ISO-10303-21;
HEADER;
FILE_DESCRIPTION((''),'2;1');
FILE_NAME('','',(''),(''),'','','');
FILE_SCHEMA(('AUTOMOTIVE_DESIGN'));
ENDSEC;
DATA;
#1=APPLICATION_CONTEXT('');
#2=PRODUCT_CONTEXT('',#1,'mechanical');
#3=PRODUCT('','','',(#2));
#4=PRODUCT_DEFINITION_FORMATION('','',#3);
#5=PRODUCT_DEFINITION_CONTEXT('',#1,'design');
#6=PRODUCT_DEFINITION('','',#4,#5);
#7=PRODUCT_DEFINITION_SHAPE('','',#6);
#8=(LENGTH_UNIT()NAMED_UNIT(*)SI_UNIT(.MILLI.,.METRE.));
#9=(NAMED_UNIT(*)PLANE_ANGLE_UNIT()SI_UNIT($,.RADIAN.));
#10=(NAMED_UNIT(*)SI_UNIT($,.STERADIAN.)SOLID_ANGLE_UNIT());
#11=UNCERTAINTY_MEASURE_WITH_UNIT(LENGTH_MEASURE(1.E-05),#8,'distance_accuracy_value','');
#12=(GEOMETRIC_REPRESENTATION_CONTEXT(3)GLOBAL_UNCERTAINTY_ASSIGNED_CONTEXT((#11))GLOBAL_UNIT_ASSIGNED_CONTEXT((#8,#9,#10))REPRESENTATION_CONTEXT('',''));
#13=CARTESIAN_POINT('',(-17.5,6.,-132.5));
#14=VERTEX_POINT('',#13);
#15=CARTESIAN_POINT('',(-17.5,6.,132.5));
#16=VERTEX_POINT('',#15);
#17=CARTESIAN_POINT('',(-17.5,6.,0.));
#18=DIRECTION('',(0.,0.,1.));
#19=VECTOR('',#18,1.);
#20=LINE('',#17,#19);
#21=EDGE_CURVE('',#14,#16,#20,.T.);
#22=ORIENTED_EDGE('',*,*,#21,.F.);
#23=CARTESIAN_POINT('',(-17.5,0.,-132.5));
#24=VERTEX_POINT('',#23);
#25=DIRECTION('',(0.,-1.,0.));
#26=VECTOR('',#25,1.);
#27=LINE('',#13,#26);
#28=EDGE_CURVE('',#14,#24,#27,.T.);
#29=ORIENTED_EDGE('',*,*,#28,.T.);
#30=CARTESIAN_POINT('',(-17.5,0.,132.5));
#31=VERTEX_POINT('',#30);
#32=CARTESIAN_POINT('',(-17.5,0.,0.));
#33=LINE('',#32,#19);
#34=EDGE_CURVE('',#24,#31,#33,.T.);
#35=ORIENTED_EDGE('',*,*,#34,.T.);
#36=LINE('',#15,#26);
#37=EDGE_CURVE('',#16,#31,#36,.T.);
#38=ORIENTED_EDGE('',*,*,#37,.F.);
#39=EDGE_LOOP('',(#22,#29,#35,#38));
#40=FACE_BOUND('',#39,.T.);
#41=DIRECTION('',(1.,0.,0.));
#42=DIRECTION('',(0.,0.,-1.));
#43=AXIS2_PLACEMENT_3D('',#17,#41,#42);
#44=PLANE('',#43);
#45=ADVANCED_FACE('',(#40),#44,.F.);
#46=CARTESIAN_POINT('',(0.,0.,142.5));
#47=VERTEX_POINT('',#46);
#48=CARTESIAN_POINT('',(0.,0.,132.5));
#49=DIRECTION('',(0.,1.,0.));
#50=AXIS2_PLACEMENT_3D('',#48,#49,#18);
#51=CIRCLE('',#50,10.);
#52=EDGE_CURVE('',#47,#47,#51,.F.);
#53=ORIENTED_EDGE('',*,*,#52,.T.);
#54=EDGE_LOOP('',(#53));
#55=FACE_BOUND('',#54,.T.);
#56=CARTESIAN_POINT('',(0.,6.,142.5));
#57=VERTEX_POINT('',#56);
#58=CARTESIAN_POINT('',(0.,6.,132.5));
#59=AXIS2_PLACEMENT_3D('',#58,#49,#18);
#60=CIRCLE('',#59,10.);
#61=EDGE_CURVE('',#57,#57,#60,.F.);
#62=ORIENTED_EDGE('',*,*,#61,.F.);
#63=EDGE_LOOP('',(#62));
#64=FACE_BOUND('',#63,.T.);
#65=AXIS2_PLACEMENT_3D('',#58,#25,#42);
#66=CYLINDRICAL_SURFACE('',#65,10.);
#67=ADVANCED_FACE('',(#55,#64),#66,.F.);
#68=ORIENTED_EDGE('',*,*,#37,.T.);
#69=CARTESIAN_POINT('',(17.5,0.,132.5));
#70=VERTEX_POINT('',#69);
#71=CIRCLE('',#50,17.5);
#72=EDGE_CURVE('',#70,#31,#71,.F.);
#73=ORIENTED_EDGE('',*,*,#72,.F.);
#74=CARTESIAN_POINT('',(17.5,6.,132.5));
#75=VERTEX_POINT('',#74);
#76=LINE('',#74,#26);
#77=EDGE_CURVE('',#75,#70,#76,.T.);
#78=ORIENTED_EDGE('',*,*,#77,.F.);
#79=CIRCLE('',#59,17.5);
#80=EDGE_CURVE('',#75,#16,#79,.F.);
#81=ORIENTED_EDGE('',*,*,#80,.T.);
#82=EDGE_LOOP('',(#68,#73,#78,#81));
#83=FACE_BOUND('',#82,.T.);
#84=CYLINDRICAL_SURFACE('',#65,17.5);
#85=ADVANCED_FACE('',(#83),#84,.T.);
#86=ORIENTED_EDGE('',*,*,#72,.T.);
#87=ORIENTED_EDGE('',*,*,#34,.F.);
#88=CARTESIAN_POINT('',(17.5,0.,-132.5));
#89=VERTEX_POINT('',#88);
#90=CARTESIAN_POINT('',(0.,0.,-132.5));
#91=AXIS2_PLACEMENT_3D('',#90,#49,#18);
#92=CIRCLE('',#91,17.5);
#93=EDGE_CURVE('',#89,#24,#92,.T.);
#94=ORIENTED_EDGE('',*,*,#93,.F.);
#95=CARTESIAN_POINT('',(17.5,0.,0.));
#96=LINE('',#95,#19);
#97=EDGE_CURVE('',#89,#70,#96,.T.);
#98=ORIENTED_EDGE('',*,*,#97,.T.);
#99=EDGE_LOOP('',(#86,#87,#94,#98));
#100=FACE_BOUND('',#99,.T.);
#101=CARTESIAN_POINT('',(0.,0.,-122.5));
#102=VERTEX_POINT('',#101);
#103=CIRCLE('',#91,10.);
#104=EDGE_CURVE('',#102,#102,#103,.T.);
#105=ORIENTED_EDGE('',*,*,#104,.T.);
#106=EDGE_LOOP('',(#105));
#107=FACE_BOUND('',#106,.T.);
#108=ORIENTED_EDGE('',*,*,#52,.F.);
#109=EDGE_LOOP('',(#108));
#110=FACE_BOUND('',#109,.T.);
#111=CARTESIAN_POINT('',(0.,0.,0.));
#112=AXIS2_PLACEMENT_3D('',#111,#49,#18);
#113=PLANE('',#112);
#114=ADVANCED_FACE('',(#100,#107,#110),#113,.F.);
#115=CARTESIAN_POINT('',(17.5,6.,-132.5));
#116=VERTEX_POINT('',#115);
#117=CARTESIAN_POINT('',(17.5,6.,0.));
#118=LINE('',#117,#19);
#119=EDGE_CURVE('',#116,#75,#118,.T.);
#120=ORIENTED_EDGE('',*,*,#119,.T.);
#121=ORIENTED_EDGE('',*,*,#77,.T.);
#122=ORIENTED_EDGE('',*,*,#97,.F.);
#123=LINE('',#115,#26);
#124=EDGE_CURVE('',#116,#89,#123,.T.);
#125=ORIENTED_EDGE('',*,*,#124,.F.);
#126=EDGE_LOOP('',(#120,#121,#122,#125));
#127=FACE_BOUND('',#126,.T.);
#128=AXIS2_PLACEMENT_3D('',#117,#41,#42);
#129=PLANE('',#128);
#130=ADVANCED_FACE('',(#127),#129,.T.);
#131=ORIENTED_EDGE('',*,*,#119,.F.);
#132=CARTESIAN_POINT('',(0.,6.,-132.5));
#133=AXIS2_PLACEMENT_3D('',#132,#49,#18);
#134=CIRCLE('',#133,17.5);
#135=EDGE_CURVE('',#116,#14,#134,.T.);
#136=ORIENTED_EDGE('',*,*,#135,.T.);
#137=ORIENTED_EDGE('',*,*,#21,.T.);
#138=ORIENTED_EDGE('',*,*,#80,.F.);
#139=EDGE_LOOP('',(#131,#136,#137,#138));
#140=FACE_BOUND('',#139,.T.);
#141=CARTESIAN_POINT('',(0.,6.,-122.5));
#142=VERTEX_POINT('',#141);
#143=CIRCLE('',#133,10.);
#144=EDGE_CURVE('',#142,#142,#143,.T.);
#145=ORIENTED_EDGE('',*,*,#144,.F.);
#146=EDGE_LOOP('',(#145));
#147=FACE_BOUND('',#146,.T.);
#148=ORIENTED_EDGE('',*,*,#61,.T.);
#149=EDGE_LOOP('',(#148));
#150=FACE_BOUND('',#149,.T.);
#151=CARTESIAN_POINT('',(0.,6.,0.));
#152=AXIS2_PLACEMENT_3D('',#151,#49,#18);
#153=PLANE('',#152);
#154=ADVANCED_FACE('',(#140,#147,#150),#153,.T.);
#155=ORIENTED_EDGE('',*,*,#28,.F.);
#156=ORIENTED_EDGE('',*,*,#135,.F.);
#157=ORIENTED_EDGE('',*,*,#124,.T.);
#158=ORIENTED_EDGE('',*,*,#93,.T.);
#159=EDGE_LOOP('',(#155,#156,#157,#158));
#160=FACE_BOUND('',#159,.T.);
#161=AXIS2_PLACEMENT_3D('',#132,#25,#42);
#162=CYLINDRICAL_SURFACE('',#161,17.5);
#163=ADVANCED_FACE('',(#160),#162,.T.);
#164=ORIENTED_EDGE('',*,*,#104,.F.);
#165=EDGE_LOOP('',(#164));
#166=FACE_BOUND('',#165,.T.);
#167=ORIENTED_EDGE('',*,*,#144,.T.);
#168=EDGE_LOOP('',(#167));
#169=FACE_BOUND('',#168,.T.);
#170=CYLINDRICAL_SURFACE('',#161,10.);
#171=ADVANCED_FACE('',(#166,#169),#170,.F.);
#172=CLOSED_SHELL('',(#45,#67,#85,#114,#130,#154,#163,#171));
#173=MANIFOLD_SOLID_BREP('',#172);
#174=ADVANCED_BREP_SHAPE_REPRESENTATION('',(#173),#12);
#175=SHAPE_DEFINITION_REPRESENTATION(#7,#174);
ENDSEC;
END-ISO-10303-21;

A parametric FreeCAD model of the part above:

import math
import FreeCAD as App
import Part
import Sketcher

V = App.Vector

doc = App.newDocument("Part")
body = doc.addObject("PartDesign::Body", "Body")

# Sketch on XZ plane
sketch1 = body.newObject("Sketcher::SketchObject", "Sketch")
sketch1.AttachmentSupport = (doc.getObject("XZ_Plane"), [""])
sketch1.MapMode = "FlatFace"
sketch1.addGeometry([
    Part.LineSegment(V(-17.5, -132.5, 0), V(-17.5, 132.5, 0)),  # 0
    Part.ArcOfCircle(Part.Circle(V(0, 132.5, 0), V(0, 0, 1), 17.5), math.radians(0), math.radians(180)),  # 1
    Part.LineSegment(V(17.5, 132.5, 0), V(17.5, -132.5, 0)),  # 2
    Part.ArcOfCircle(Part.Circle(V(0, -132.5, 0), V(0, 0, 1), 17.5), math.radians(180), math.radians(360)),  # 3
    Part.Circle(V(0, 132.5, 0), V(0, 0, 1), 10),  # 4
    Part.Circle(V(0, -132.5, 0), V(0, 0, 1), 10),  # 5
], False)
sketch1.addConstraint([
    Sketcher.Constraint("Tangent", 0, 2, 1, 2),
    Sketcher.Constraint("Tangent", 1, 1, 2, 1),
    Sketcher.Constraint("Tangent", 2, 2, 3, 2),
    Sketcher.Constraint("Tangent", 3, 1, 0, 1),
    Sketcher.Constraint("Vertical", 0),
    Sketcher.Constraint("Vertical", 2),
    Sketcher.Constraint("Coincident", 4, 3, 1, 3),
    Sketcher.Constraint("Coincident", 5, 3, 3, 3),
    Sketcher.Constraint("Equal", 4, 5),
    Sketcher.Constraint("Symmetric", 1, 3, 3, 3, -1, 1),
    Sketcher.Constraint("Diameter", 4, 20.0),
    Sketcher.Constraint("Radius", 1, 17.5),
    Sketcher.Constraint("DistanceY", 0, 1, 0, 2, 265.0),
])
pad1 = body.newObject("PartDesign::Pad", "Pad")
pad1.Profile = sketch1
pad1.Length = 6
pad1.Reversed = True

doc.recompute()
